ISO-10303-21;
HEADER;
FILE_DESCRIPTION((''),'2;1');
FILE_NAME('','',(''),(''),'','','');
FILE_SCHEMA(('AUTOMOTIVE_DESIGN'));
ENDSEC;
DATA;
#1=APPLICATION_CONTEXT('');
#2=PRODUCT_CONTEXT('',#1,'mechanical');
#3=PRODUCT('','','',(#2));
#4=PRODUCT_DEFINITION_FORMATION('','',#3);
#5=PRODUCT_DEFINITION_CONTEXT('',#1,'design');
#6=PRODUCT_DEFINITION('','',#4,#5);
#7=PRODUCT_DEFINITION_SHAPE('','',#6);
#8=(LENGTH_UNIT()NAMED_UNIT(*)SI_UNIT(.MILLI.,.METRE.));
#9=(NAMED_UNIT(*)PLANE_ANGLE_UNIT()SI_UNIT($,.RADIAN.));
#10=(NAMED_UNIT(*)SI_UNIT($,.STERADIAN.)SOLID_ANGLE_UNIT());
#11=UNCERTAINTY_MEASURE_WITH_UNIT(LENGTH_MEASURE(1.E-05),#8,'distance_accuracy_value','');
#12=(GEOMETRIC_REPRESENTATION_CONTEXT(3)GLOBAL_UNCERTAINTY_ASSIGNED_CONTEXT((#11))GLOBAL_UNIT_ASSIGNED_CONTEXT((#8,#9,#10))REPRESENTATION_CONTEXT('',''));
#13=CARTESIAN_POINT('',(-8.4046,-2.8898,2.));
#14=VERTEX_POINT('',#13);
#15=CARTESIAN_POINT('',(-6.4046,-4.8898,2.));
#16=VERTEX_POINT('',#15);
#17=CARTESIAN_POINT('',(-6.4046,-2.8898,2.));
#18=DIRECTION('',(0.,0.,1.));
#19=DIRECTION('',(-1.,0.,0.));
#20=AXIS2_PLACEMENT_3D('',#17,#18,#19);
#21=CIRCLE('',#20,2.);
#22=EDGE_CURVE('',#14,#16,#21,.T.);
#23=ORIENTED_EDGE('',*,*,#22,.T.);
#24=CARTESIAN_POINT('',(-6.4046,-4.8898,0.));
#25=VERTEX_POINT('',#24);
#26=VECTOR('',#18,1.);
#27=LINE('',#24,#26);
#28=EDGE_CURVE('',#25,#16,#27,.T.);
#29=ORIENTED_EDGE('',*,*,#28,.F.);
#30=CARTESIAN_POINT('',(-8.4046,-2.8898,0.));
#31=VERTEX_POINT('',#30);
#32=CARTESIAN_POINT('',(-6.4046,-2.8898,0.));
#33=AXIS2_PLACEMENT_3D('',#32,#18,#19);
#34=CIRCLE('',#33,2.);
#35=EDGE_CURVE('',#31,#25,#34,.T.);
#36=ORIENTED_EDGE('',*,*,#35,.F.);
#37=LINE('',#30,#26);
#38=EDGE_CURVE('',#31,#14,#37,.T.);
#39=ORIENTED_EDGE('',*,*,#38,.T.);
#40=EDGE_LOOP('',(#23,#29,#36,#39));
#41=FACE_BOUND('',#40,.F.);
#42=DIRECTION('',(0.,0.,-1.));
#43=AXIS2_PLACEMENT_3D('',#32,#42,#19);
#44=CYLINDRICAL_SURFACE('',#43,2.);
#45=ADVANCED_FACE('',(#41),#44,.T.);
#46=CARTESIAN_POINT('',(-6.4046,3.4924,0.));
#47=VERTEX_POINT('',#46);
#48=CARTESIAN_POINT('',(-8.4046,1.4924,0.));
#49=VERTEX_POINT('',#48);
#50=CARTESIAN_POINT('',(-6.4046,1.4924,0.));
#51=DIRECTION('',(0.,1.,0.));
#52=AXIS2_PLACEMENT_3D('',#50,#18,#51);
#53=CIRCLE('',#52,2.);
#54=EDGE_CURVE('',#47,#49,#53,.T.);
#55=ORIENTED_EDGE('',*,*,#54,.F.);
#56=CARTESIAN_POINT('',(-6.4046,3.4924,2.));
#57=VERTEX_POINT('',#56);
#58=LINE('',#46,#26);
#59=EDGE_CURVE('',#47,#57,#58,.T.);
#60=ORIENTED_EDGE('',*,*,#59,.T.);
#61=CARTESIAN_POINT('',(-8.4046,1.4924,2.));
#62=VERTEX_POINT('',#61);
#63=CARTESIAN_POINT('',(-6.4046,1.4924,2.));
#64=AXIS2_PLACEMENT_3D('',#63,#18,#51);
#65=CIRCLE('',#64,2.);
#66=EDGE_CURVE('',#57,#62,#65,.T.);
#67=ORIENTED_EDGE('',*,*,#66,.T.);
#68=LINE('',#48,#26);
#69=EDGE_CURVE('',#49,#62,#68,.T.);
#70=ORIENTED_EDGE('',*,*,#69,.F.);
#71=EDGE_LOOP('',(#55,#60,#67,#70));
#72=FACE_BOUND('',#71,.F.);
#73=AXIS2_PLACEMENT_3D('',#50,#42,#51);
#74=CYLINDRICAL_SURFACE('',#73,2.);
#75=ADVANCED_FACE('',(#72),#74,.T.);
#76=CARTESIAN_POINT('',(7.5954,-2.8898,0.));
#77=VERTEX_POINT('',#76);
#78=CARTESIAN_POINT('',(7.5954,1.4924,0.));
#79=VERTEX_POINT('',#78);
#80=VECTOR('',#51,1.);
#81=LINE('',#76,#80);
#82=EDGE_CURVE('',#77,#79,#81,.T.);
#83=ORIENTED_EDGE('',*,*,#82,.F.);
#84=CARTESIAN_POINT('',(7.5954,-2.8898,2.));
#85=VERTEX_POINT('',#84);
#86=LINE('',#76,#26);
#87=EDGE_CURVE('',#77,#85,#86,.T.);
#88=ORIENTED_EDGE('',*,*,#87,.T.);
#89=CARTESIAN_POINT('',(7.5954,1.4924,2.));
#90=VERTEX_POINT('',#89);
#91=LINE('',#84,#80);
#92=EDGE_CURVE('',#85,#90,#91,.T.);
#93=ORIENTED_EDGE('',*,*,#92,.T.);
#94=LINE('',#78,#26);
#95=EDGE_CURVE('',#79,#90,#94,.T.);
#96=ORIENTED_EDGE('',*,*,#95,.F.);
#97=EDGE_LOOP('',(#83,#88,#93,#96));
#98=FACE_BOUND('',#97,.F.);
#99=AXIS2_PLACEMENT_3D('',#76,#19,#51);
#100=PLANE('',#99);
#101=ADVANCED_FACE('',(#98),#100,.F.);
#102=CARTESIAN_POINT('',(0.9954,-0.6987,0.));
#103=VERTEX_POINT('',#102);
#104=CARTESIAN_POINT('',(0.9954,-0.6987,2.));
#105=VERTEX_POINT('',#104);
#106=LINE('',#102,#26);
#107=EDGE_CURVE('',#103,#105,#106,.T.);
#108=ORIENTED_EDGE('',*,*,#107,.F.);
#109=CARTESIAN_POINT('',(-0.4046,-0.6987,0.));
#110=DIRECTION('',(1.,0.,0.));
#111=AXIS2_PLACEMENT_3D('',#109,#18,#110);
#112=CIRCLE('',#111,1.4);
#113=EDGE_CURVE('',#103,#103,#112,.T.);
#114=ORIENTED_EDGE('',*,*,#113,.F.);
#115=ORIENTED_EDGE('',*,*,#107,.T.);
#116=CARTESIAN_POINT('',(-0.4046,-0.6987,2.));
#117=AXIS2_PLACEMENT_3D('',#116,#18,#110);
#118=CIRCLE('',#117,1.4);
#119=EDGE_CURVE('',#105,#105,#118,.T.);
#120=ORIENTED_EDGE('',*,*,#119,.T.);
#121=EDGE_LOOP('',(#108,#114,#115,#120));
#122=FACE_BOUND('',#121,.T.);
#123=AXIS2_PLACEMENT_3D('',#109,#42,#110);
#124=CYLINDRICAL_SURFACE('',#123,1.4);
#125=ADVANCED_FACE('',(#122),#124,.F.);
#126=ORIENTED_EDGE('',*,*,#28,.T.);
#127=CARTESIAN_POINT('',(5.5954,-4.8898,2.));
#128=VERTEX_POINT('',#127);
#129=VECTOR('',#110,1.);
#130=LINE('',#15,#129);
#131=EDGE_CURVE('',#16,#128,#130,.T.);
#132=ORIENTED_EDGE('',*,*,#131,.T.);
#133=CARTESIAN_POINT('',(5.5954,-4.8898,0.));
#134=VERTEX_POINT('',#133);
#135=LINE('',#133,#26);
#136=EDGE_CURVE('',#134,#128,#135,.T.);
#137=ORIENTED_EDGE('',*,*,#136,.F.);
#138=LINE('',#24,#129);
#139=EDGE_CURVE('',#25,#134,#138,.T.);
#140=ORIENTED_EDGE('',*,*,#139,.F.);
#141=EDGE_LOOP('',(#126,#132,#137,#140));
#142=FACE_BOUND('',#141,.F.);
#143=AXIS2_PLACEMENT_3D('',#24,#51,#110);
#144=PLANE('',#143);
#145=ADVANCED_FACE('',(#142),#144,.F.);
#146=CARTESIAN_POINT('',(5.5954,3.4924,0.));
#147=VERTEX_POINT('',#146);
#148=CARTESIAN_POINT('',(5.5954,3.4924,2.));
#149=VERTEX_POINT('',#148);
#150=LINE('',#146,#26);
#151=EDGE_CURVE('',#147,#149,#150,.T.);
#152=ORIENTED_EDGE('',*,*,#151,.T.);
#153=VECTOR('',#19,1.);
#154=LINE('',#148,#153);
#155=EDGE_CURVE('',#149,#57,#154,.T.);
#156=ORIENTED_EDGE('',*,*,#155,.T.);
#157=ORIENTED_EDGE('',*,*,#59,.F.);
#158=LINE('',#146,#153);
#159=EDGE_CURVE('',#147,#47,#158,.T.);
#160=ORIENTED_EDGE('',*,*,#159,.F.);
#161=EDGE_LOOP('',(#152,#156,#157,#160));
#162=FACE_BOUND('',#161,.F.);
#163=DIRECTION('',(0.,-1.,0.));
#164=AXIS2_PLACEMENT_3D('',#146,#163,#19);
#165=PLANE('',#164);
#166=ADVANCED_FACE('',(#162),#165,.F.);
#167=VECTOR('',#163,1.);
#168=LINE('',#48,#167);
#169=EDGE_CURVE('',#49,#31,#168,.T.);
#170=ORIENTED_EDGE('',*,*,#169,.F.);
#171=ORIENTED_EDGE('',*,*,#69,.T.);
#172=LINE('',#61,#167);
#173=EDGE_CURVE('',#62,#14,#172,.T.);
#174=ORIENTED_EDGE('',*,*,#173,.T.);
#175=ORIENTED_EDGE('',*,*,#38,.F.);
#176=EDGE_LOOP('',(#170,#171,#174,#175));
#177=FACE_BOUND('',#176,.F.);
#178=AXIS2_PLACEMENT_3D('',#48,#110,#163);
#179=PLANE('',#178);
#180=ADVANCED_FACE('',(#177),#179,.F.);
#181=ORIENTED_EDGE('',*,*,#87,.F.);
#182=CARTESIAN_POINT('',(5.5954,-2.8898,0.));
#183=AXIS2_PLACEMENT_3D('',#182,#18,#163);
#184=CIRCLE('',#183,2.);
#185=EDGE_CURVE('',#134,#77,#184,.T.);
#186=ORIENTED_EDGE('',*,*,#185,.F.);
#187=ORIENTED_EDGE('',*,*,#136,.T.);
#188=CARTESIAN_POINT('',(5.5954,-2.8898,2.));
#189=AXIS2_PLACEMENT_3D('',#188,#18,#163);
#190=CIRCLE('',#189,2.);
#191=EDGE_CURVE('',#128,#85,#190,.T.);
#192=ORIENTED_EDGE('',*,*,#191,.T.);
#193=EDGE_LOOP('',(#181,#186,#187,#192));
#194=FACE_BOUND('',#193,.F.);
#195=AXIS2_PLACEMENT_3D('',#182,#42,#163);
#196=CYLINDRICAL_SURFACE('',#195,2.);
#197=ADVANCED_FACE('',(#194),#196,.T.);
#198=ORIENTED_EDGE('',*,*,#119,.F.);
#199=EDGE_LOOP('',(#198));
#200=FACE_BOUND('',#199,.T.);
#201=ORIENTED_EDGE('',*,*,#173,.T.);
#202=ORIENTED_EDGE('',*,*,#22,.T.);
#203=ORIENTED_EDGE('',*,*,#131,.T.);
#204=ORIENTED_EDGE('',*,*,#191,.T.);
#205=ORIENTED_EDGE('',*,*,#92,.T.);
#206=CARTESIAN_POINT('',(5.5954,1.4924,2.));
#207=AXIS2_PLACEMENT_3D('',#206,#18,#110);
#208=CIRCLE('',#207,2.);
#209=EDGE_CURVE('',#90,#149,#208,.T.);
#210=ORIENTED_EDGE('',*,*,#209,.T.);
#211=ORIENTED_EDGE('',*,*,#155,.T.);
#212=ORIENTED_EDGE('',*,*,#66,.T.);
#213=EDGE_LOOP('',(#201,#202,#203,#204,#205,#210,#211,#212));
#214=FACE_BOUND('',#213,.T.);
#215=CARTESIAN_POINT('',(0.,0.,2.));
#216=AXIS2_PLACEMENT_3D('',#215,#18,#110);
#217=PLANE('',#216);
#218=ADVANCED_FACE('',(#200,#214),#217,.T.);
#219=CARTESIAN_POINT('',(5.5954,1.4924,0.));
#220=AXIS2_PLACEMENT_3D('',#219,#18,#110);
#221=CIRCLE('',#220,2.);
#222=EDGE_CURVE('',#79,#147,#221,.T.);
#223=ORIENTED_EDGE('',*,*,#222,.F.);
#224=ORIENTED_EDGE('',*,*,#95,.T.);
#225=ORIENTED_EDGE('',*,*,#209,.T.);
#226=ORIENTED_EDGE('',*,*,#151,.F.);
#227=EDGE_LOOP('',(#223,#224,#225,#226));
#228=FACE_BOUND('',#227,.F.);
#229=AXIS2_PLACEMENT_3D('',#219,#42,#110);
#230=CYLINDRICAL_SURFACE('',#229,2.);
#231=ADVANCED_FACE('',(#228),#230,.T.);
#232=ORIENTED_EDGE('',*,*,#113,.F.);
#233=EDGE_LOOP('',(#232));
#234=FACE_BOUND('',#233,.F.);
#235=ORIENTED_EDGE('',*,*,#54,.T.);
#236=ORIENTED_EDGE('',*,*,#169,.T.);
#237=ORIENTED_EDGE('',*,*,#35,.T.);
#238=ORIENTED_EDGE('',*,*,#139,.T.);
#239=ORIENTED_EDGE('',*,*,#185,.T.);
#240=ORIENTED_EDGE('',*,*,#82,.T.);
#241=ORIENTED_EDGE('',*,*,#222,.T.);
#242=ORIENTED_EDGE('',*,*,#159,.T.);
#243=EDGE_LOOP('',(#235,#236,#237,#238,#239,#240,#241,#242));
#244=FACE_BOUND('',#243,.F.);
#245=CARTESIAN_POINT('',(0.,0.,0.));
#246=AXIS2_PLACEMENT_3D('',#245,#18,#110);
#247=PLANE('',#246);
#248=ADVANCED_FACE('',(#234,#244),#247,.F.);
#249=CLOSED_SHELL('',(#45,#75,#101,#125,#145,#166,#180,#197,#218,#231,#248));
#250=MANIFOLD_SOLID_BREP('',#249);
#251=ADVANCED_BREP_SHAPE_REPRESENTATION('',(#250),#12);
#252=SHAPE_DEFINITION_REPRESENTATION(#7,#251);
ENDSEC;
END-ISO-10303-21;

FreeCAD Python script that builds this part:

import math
import FreeCAD as App
import Part
import Sketcher
Q = App.Units.Quantity

doc = App.newDocument("Part")
body = doc.addObject("PartDesign::Body", "Body")

# Sketch on XY plane
sketch1 = body.newObject("Sketcher::SketchObject", "Sketch")
sketch1.AttachmentSupport = (doc.getObject("XY_Plane"), [""])
sketch1.MapMode = "FlatFace"
sketch1.addGeometry([
    Part.ArcOfCircle(Part.Circle(App.Vector(-6.4, -2.9, 0), App.Vector(0, 0, 1), 2), math.radians(180), math.radians(270)),  # 0
    Part.LineSegment(App.Vector(-6.4, -4.9, 0), App.Vector(5.6, -4.9, 0)),  # 1
    Part.ArcOfCircle(Part.Circle(App.Vector(5.6, -2.9, 0), App.Vector(0, 0, 1), 2), math.radians(-90), math.radians(0)),  # 2
    Part.LineSegment(App.Vector(7.6, -2.9, 0), App.Vector(7.6, 1.5, 0)),  # 3
    Part.ArcOfCircle(Part.Circle(App.Vector(5.6, 1.5, 0), App.Vector(0, 0, 1), 2), math.radians(0), math.radians(90)),  # 4
    Part.LineSegment(App.Vector(5.6, 3.5, 0), App.Vector(-6.4, 3.5, 0)),  # 5
    Part.ArcOfCircle(Part.Circle(App.Vector(-6.4, 1.5, 0), App.Vector(0, 0, 1), 2), math.radians(90), math.radians(180)),  # 6
    Part.LineSegment(App.Vector(-8.4, 1.5, 0), App.Vector(-8.4, -2.9, 0)),  # 7
    Part.Circle(App.Vector(-0.4, -0.7, 0), App.Vector(0, 0, 1), 1.4),  # 8
], False)
sketch1.addConstraint([
    Sketcher.Constraint("Tangent", 0, 2, 1, 1),
    Sketcher.Constraint("Tangent", 1, 2, 2, 1),
    Sketcher.Constraint("Tangent", 2, 2, 3, 1),
    Sketcher.Constraint("Tangent", 3, 2, 4, 1),
    Sketcher.Constraint("Tangent", 4, 2, 5, 1),
    Sketcher.Constraint("Tangent", 5, 2, 6, 1),
    Sketcher.Constraint("Tangent", 6, 2, 7, 1),
    Sketcher.Constraint("Tangent", 7, 2, 0, 1),
    Sketcher.Constraint("Horizontal", 1),
    Sketcher.Constraint("Vertical", 3),
    Sketcher.Constraint("Horizontal", 5),
    Sketcher.Constraint("Vertical", 7),
    Sketcher.Constraint("Equal", 0, 2),
    Sketcher.Constraint("Equal", 2, 4),
    Sketcher.Constraint("Equal", 4, 6),
    Sketcher.Constraint("Radius", 0, Q("2 mm")),
    Sketcher.Constraint("DistanceX", 8, 3, 2, 2, Q("8 mm")),
    Sketcher.Constraint("DistanceX", 6, 2, 8, 3, Q("8 mm")),
    Sketcher.Constraint("Diameter", 8, Q("2.8 mm")),
    Sketcher.Constraint("DistanceY", 0, 2, 8, 3, Q("4.191 mm")),
    Sketcher.Constraint("DistanceY", 8, 3, 4, 2, Q("4.191 mm")),
    Sketcher.Constraint("DistanceX", 0, 3, -1, 1, Q("6.4046 mm")),
    Sketcher.Constraint("DistanceY", 0, 3, -1, 1, Q("2.8898 mm")),
])
pad1 = body.newObject("PartDesign::Pad", "Pad")
pad1.Profile = sketch1
pad1.Length = 2

doc.recompute()
